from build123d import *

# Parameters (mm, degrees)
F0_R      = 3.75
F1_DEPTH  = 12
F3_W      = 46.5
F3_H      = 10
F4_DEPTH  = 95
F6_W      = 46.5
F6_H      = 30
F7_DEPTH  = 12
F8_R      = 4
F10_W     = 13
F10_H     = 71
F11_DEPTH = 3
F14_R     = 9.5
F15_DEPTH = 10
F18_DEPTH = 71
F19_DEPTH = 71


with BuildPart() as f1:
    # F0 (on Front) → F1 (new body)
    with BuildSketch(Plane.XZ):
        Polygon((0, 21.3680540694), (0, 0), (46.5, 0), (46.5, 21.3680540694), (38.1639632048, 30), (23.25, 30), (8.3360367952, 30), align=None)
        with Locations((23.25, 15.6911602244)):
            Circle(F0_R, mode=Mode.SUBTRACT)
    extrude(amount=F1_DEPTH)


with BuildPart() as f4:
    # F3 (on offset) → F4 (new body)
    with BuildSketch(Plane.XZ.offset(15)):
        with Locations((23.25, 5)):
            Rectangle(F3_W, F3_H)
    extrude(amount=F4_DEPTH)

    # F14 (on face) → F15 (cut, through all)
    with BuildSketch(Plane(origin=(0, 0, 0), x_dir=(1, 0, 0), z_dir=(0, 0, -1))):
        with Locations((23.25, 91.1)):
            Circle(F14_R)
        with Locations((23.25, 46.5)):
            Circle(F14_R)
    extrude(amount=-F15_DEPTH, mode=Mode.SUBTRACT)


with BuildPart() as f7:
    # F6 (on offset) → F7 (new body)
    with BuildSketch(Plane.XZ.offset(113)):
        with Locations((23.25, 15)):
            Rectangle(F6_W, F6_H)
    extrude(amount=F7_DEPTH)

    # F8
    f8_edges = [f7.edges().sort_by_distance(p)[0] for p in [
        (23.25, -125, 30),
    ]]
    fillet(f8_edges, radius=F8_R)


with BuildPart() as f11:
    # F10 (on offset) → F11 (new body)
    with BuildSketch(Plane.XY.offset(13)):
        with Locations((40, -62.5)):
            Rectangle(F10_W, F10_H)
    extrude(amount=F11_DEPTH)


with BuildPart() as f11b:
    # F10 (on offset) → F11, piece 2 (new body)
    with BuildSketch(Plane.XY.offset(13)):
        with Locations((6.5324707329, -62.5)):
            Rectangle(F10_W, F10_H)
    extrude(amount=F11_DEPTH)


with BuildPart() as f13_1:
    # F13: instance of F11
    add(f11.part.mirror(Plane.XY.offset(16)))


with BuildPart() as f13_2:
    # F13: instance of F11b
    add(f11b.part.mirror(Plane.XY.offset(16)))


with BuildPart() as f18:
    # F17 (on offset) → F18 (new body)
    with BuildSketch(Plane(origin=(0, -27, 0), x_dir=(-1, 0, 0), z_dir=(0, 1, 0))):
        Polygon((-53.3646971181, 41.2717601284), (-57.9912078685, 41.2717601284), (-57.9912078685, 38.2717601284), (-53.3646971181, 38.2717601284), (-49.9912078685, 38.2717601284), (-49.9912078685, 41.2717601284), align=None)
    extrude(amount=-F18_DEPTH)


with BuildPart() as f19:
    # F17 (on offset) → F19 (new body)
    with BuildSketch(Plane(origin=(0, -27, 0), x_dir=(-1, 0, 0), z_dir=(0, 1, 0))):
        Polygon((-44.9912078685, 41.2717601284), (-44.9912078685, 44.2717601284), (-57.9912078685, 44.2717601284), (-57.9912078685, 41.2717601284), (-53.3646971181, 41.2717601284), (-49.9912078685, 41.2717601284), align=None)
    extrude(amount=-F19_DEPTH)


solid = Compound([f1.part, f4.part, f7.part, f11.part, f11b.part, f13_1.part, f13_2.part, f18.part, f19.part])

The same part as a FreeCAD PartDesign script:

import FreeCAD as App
import Part
import Sketcher

V = App.Vector
Q = App.Units.Quantity


def edges_at(feature, points):
    """Names of the edges that pass closest to the given points."""
    edges = feature.Shape.Edges
    near = lambda p: min(range(len(edges)), key=lambda i: edges[i].distToShape(Part.Vertex(*p))[0])
    return sorted({f"Edge{near(p) + 1}" for p in points})


def add_polygon(sketch, points):
    """Adds a closed chain of lines whose ends are joined by coincident constraints."""
    first, n = sketch.GeometryCount, len(points)
    for a, b in zip(points, points[1:] + points[:1]):
        sketch.addGeometry(Part.LineSegment(App.Vector(*a, 0), App.Vector(*b, 0)), False)
    for i in range(n):
        sketch.addConstraint(Sketcher.Constraint("Coincident", first + i, 2, first + (i + 1) % n, 1))

doc = App.newDocument("Part")
body = doc.addObject("PartDesign::Body", "Body")

sketch1 = body.newObject("Sketcher::SketchObject", "Sketch")
sketch1.AttachmentSupport = (doc.getObject("XZ_Plane"), [""])
sketch1.MapMode = "FlatFace"
add_polygon(sketch1, [(0, 21.368054), (0, 0), (46.5, 0), (46.5, 21.368054), (38.163963, 30), (8.336037, 30)])
sketch1.addGeometry(Part.Circle(V(23.25, 15.69116, 0), V(0, 0, 1), 3.75), False)
sketch1.addConstraint(Sketcher.Constraint("Vertical", 0))
sketch1.addConstraint(Sketcher.Constraint("Horizontal", 1))
sketch1.addConstraint(Sketcher.Constraint("Vertical", 2))
sketch1.addConstraint(Sketcher.Constraint("Horizontal", 4))
sketch1.addConstraint(Sketcher.Constraint("Coincident", 0, 2, -1, 1))
sketch1.addConstraint(Sketcher.Constraint("Horizontal", 2, 2, 5, 2))
sketch1.addConstraint(Sketcher.Constraint("Equal", 3, 5))
sketch1.addConstraint(Sketcher.Constraint("Diameter", 6, Q("7.5 mm")))
sketch1.addConstraint(Sketcher.Constraint("Distance", 3, Q("12 mm")))
sketch1.addConstraint(Sketcher.Constraint("DistanceX", 1, 1, 1, 2, Q("46.5 mm")))
sketch1.addConstraint(Sketcher.Constraint("DistanceY", -1, 1, 3, 2, Q("30 mm")))
sketch1.addConstraint(Sketcher.Constraint("DistanceX", -1, 1, 6, 3, Q("23.25 mm")))
sketch1.addConstraint(Sketcher.Constraint("DistanceX", 4, 2, 4, 1, Q("29.827926 mm")))
sketch1.addConstraint(Sketcher.Constraint("DistanceY", -1, 1, 6, 3, Q("15.69116 mm")))
pad1 = body.newObject("PartDesign::Pad", "Pad")
pad1.Profile = sketch1
pad1.Length = 12
body2 = doc.addObject("PartDesign::Body", "Body001")

sketch2 = body2.newObject("Sketcher::SketchObject", "Sketch001")
sketch2.AttachmentSupport = (doc.getObject("XZ_Plane001"), [""])
sketch2.MapMode = "FlatFace"
sketch2.AttachmentOffset = App.Placement(V(0, 0, 15), App.Rotation())
add_polygon(sketch2, [(0, 10), (0, 0), (46.5, 0), (46.5, 10)])
sketch2.addConstraint(Sketcher.Constraint("Vertical", 0))
sketch2.addConstraint(Sketcher.Constraint("Horizontal", 1))
sketch2.addConstraint(Sketcher.Constraint("Vertical", 2))
sketch2.addConstraint(Sketcher.Constraint("Horizontal", 3))
sketch2.addConstraint(Sketcher.Constraint("Coincident", 0, 2, -1, 1))
sketch2.addConstraint(Sketcher.Constraint("DistanceY", 0, 2, 0, 1, Q("10 mm")))
sketch2.addConstraint(Sketcher.Constraint("DistanceX", 1, 1, 1, 2, Q("46.5 mm")))
pad2 = body2.newObject("PartDesign::Pad", "Pad001")
pad2.Profile = sketch2
pad2.Length = 95

sketch3 = body2.newObject("Sketcher::SketchObject", "Sketch002")
sketch3.AttachmentSupport = (doc.getObject("XY_Plane001"), [""])
sketch3.MapMode = "FlatFace"
sketch3.addGeometry(Part.Circle(V(23.25, -91.1, 0), V(0, 0, 1), 9.5), False)
sketch3.addGeometry(Part.Circle(V(23.25, -46.5, 0), V(0, 0, 1), 9.5), False)
sketch3.addConstraint(Sketcher.Constraint("Equal", 0, 1))
sketch3.addConstraint(Sketcher.Constraint("Vertical", 0, 3, 1, 3))
sketch3.addConstraint(Sketcher.Constraint("Diameter", 0, Q("19 mm")))
sketch3.addConstraint(Sketcher.Constraint("DistanceY", 0, 3, -1, 1, Q("91.1 mm")))
sketch3.addConstraint(Sketcher.Constraint("DistanceY", 1, 3, -1, 1, Q("46.5 mm")))
sketch3.addConstraint(Sketcher.Constraint("DistanceX", -1, 1, 0, 3, Q("23.25 mm")))
pocket1 = body2.newObject("PartDesign::Pocket", "Pocket")
pocket1.Profile = sketch3
pocket1.Type = "ThroughAll"
pocket1.Reversed = True
body3 = doc.addObject("PartDesign::Body", "Body002")

sketch4 = body3.newObject("Sketcher::SketchObject", "Sketch003")
sketch4.AttachmentSupport = (doc.getObject("XZ_Plane002"), [""])
sketch4.MapMode = "FlatFace"
sketch4.AttachmentOffset = App.Placement(V(0, 0, 113), App.Rotation())
add_polygon(sketch4, [(0, 30), (0, 0), (46.5, 0), (46.5, 30)])
sketch4.addConstraint(Sketcher.Constraint("Vertical", 0))
sketch4.addConstraint(Sketcher.Constraint("Horizontal", 1))
sketch4.addConstraint(Sketcher.Constraint("Vertical", 2))
sketch4.addConstraint(Sketcher.Constraint("Horizontal", 3))
sketch4.addConstraint(Sketcher.Constraint("Coincident", 0, 2, -1, 1))
sketch4.addConstraint(Sketcher.Constraint("DistanceY", 0, 2, 0, 1, Q("30 mm")))
sketch4.addConstraint(Sketcher.Constraint("DistanceX", 1, 1, 1, 2, Q("46.5 mm")))
pad3 = body3.newObject("PartDesign::Pad", "Pad002")
pad3.Profile = sketch4
pad3.Length = 12
doc.recompute()

fillet = body3.newObject("PartDesign::Fillet", "Fillet")
fillet.Base = (pad3, edges_at(pad3, [(23.25, -125, 30)]))
fillet.Radius = 4
body4 = doc.addObject("PartDesign::Body", "Body003")

sketch5 = body4.newObject("Sketcher::SketchObject", "Sketch004")
sketch5.AttachmentSupport = (doc.getObject("XY_Plane003"), [""])
sketch5.MapMode = "FlatFace"
sketch5.AttachmentOffset = App.Placement(V(0, 0, 13), App.Rotation())
add_polygon(sketch5, [(33.5, -27), (33.5, -98), (46.5, -98), (46.5, -27)])
sketch5.addConstraint(Sketcher.Constraint("Vertical", 0))
sketch5.addConstraint(Sketcher.Constraint("Horizontal", 1))
sketch5.addConstraint(Sketcher.Constraint("Vertical", 2))
sketch5.addConstraint(Sketcher.Constraint("Horizontal", 3))
sketch5.addConstraint(Sketcher.Constraint("DistanceX", 1, 1, 1, 2, Q("13 mm")))
sketch5.addConstraint(Sketcher.Constraint("DistanceY", 0, 2, 0, 1, Q("71 mm")))
sketch5.addConstraint(Sketcher.Constraint("DistanceY", 0, 2, -1, 1, Q("98 mm")))
sketch5.addConstraint(Sketcher.Constraint("DistanceX", -1, 1, 0, 2, Q("33.5 mm")))
pad4 = body4.newObject("PartDesign::Pad", "Pad003")
pad4.Profile = sketch5
pad4.Length = 3
body5 = doc.addObject("PartDesign::Body", "Body004")

sketch6 = body5.newObject("Sketcher::SketchObject", "Sketch005")
sketch6.AttachmentSupport = (doc.getObject("XY_Plane004"), [""])
sketch6.MapMode = "FlatFace"
sketch6.AttachmentOffset = App.Placement(V(0, 0, 13), App.Rotation())
add_polygon(sketch6, [(0.032471, -27), (0.032471, -98), (13.032471, -98), (13.032471, -27)])
sketch6.addConstraint(Sketcher.Constraint("Vertical", 0))
sketch6.addConstraint(Sketcher.Constraint("Horizontal", 1))
sketch6.addConstraint(Sketcher.Constraint("Vertical", 2))
sketch6.addConstraint(Sketcher.Constraint("Horizontal", 3))
sketch6.addConstraint(Sketcher.Constraint("DistanceX", 1, 1, 1, 2, Q("13 mm")))
sketch6.addConstraint(Sketcher.Constraint("DistanceY", 0, 2, 0, 1, Q("71 mm")))
sketch6.addConstraint(Sketcher.Constraint("DistanceY", 0, 2, -1, 1, Q("98 mm")))
sketch6.addConstraint(Sketcher.Constraint("DistanceX", -1, 1, 0, 2, Q("0.032471 mm")))
pad5 = body5.newObject("PartDesign::Pad", "Pad004")
pad5.Profile = sketch6
pad5.Length = 3
body6 = doc.addObject("PartDesign::Body", "Body005")
doc.recompute()

mirroring = doc.addObject("Part::Mirroring", "Mirroring")
mirroring.Source = body4
mirroring.Base = V(0, 0, 16)
mirroring.Normal = V(0, 0, 1)
body6.BaseFeature = mirroring
doc.recompute()
body7 = doc.addObject("PartDesign::Body", "Body006")
doc.recompute()

mirroring2 = doc.addObject("Part::Mirroring", "Mirroring001")
mirroring2.Source = body5
mirroring2.Base = V(0, 0, 16)
mirroring2.Normal = V(0, 0, 1)
body7.BaseFeature = mirroring2
doc.recompute()
body8 = doc.addObject("PartDesign::Body", "Body007")

sketch7 = body8.newObject("Sketcher::SketchObject", "Sketch006")
sketch7.AttachmentSupport = (doc.getObject("XZ_Plane007"), [""])
sketch7.MapMode = "FlatFace"
sketch7.AttachmentOffset = App.Placement(V(0, 0, 27), App.Rotation())
add_polygon(sketch7, [(57.991208, 41.27176), (57.991208, 38.27176), (49.991208, 38.27176), (49.991208, 41.27176)])
sketch7.addConstraint(Sketcher.Constraint("Vertical", 0))
sketch7.addConstraint(Sketcher.Constraint("Horizontal", 1))
sketch7.addConstraint(Sketcher.Constraint("Vertical", 2))
sketch7.addConstraint(Sketcher.Constraint("Horizontal", 3))
sketch7.addConstraint(Sketcher.Constraint("DistanceX", 1, 2, 1, 1, Q("8 mm")))
sketch7.addConstraint(Sketcher.Constraint("DistanceY", 0, 2, 0, 1, Q("3 mm")))
sketch7.addConstraint(Sketcher.Constraint("DistanceY", -1, 1, 0, 2, Q("38.27176 mm")))
sketch7.addConstraint(Sketcher.Constraint("DistanceX", -1, 1, 0, 2, Q("57.991208 mm")))
pad6 = body8.newObject("PartDesign::Pad", "Pad005")
pad6.Profile = sketch7
pad6.Length = 71
body9 = doc.addObject("PartDesign::Body", "Body008")

sketch8 = body9.newObject("Sketcher::SketchObject", "Sketch007")
sketch8.AttachmentSupport = (doc.getObject("XZ_Plane008"), [""])
sketch8.MapMode = "FlatFace"
sketch8.AttachmentOffset = App.Placement(V(0, 0, 27), App.Rotation())
add_polygon(sketch8, [(44.991208, 41.27176), (44.991208, 44.27176), (57.991208, 44.27176), (57.991208, 41.27176)])
sketch8.addConstraint(Sketcher.Constraint("Vertical", 0))
sketch8.addConstraint(Sketcher.Constraint("Horizontal", 1))
sketch8.addConstraint(Sketcher.Constraint("Vertical", 2))
sketch8.addConstraint(Sketcher.Constraint("Horizontal", 3))
sketch8.addConstraint(Sketcher.Constraint("DistanceX", 1, 1, 1, 2, Q("13 mm")))
sketch8.addConstraint(Sketcher.Constraint("DistanceY", 0, 1, 0, 2, Q("3 mm")))
sketch8.addConstraint(Sketcher.Constraint("DistanceY", -1, 1, 0, 2, Q("44.27176 mm")))
sketch8.addConstraint(Sketcher.Constraint("DistanceX", -1, 1, 0, 2, Q("44.991208 mm")))
pad7 = body9.newObject("PartDesign::Pad", "Pad006")
pad7.Profile = sketch8
pad7.Length = 71
mirroring.Visibility = False
mirroring2.Visibility = False

doc.recompute()
